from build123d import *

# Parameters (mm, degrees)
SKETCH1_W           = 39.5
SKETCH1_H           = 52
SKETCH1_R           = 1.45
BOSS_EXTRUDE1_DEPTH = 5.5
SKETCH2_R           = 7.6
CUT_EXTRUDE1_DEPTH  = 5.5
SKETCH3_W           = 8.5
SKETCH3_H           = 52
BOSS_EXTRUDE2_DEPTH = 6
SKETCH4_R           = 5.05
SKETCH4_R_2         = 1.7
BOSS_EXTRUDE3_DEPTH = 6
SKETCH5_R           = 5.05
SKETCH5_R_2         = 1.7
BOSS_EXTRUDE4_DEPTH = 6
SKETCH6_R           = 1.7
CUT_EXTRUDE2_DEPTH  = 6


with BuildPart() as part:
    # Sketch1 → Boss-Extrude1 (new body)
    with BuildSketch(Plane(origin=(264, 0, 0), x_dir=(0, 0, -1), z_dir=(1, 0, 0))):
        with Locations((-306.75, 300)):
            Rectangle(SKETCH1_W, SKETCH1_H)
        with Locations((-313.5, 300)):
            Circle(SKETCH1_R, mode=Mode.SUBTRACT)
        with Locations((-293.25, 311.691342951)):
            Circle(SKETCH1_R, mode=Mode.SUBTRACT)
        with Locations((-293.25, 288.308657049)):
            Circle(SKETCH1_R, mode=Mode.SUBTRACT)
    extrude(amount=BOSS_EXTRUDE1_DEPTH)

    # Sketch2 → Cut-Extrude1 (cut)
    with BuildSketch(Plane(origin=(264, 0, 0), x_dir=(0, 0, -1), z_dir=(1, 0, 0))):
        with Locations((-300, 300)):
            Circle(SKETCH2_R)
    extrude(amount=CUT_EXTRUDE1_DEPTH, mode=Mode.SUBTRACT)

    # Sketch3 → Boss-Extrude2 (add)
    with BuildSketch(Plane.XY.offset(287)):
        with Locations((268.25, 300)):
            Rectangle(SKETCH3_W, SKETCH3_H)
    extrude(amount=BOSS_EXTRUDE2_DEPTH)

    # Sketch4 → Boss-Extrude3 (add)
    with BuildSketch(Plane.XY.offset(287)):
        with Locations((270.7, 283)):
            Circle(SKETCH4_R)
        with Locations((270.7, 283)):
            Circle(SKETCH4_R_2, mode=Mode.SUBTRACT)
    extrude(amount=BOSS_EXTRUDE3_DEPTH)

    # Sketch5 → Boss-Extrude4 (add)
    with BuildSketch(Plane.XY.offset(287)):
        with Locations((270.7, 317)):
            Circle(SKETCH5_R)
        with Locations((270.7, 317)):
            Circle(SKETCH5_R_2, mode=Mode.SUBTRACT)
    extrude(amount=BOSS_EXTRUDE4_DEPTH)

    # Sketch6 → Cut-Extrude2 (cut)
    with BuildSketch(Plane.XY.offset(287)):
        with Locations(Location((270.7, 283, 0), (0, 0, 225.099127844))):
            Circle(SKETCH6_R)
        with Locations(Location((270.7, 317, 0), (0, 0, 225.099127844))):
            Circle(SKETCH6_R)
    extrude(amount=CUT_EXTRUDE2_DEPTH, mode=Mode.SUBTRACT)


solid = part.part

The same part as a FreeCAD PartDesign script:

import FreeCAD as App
import Part
import Sketcher
from FreeCAD import Vector


def add_polygon(sketch, points):
    """Adds a closed chain of lines whose ends are joined by coincident constraints."""
    first, n = sketch.GeometryCount, len(points)
    for a, b in zip(points, points[1:] + points[:1]):
        sketch.addGeometry(Part.LineSegment(App.Vector(*a, 0), App.Vector(*b, 0)), False)
    for i in range(n):
        sketch.addConstraint(Sketcher.Constraint("Coincident", first + i, 2, first + (i + 1) % n, 1))

doc = App.newDocument("Part")
params = doc.addObject("Spreadsheet::Sheet", "Params")
for row, (alias, value) in enumerate([
    ("sketch1_diameter", "2.9 mm"),
    ("sketch1_width", "52 mm"),
    ("sketch1_height", "39.5 mm"),
    ("pad1_length", "5.5 mm"),
    ("sketch2_diameter", "15.2 mm"),
    ("pocket1_length", "5.5 mm"),
    ("sketch3_height", "52 mm"),
    ("sketch3_width", "8.5 mm"),
    ("pad2_length", "6 mm"),
    ("sketch4_diameter", "10.1 mm"),
    ("sketch4_diameter2", "3.4 mm"),
    ("pad3_length", "6 mm"),
    ("sketch5_diameter", "10.1 mm"),
    ("sketch5_diameter2", "3.4 mm"),
    ("pad4_length", "6 mm"),
    ("sketch6_diameter", "3.4 mm"),
    ("pocket2_length", "6 mm"),
], start=1):
    params.set(f"A{row}", alias)
    params.set(f"B{row}", "=" + value)
    params.setAlias(f"B{row}", alias)

body = doc.addObject("PartDesign::Body", "Body")

sketch1 = body.newObject("Sketcher::SketchObject", "Sketch")
sketch1.AttachmentSupport = (doc.getObject("YZ_Plane"), [""])
sketch1.MapMode = "FlatFace"
sketch1.AttachmentOffset = App.Placement(Vector(0, 0, 264), App.Rotation())
add_polygon(sketch1, [(326, 326.5), (274, 326.5), (274, 287), (326, 287)])
sketch1.addGeometry(Part.Circle(Vector(288.3, 293.2, 0), Vector(0, 0, 1), 1.4), False)
sketch1.addGeometry(Part.Circle(Vector(300, 313.5, 0), Vector(0, 0, 1), 1.4), False)
sketch1.addGeometry(Part.Circle(Vector(311.7, 293.2, 0), Vector(0, 0, 1), 1.4), False)
sketch1.addConstraint([
    Sketcher.Constraint("Horizontal", 0),
    Sketcher.Constraint("Vertical", 1),
    Sketcher.Constraint("Horizontal", 2),
    Sketcher.Constraint("Vertical", 3),
    Sketcher.Constraint("Equal", 4, 5),
    Sketcher.Constraint("Equal", 5, 6),
    Sketcher.Constraint("Horizontal", 4, 3, 6, 3),
    Sketcher.Constraint("Diameter", 4, 2.9),
    Sketcher.Constraint("DistanceX", 0, 2, 0, 1, 52.0),
    Sketcher.Constraint("DistanceY", 1, 2, 1, 1, 39.5),
    Sketcher.Constraint("DistanceX", -1, 1, 5, 3, 300.0),
    Sketcher.Constraint("DistanceX", -1, 1, 0, 2, 274.0),
    Sketcher.Constraint("DistanceY", -1, 1, 1, 2, 287.0),
    Sketcher.Constraint("DistanceY", 5, 3, 0, 2, 13.0),
    Sketcher.Constraint("DistanceY", -1, 1, 4, 3, 293.25),
    Sketcher.Constraint("DistanceX", -1, 1, 4, 3, 288.308657),
    Sketcher.Constraint("DistanceX", -1, 1, 6, 3, 311.691343),
])
sketch1.setExpression("Constraints[11]", "Params.sketch1_diameter")
sketch1.setExpression("Constraints[12]", "Params.sketch1_width")
sketch1.setExpression("Constraints[13]", "Params.sketch1_height")
pad1 = body.newObject("PartDesign::Pad", "Pad")
pad1.Profile = sketch1
pad1.setExpression("Length", "Params.pad1_length")

sketch2 = body.newObject("Sketcher::SketchObject", "Sketch001")
sketch2.AttachmentSupport = (doc.getObject("YZ_Plane"), [""])
sketch2.MapMode = "FlatFace"
sketch2.AttachmentOffset = App.Placement(Vector(0, 0, 264), App.Rotation())
sketch2.addGeometry(Part.Circle(Vector(300, 300, 0), Vector(0, 0, 1), 8), False)
sketch2.addConstraint([
    Sketcher.Constraint("Diameter", 0, 15.2),
    Sketcher.Constraint("DistanceX", -1, 1, 0, 3, 300.0),
    Sketcher.Constraint("DistanceY", -1, 1, 0, 3, 300.0),
])
sketch2.setExpression("Constraints[0]", "Params.sketch2_diameter")
pocket1 = body.newObject("PartDesign::Pocket", "Pocket")
pocket1.Profile = sketch2
pocket1.setExpression("Length", "Params.pocket1_length")
pocket1.Reversed = True

sketch3 = body.newObject("Sketcher::SketchObject", "Sketch002")
sketch3.AttachmentSupport = (doc.getObject("XY_Plane"), [""])
sketch3.MapMode = "FlatFace"
sketch3.AttachmentOffset = App.Placement(Vector(0, 0, 287), App.Rotation())
add_polygon(sketch3, [(264, 326), (264, 274), (272, 274), (272, 326)])
sketch3.addConstraint([
    Sketcher.Constraint("Vertical", 0),
    Sketcher.Constraint("Horizontal", 1),
    Sketcher.Constraint("Vertical", 2),
    Sketcher.Constraint("Horizontal", 3),
    Sketcher.Constraint("DistanceY", 0, 2, 0, 1, 52.0),
    Sketcher.Constraint("DistanceX", 1, 1, 1, 2, 8.5),
    Sketcher.Constraint("DistanceX", -1, 1, 0, 2, 264.0),
    Sketcher.Constraint("DistanceY", -1, 1, 0, 2, 274.0),
])
sketch3.setExpression("Constraints[8]", "Params.sketch3_height")
sketch3.setExpression("Constraints[9]", "Params.sketch3_width")
pad2 = body.newObject("PartDesign::Pad", "Pad001")
pad2.Profile = sketch3
pad2.setExpression("Length", "Params.pad2_length")

sketch4 = body.newObject("Sketcher::SketchObject", "Sketch003")
sketch4.AttachmentSupport = (doc.getObject("XY_Plane"), [""])
sketch4.MapMode = "FlatFace"
sketch4.AttachmentOffset = App.Placement(Vector(0, 0, 287), App.Rotation())
sketch4.addGeometry([
    Part.Circle(Vector(270.7, 283, 0), Vector(0, 0, 1), 5),
    Part.Circle(Vector(270.7, 283, 0), Vector(0, 0, 1), 1.7),
], False)
sketch4.addConstraint([
    Sketcher.Constraint("Coincident", 1, 3, 0, 3),
    Sketcher.Constraint("Diameter", 0, 10.1),
    Sketcher.Constraint("Diameter", 1, 3.4),
    Sketcher.Constraint("DistanceY", -1, 1, 0, 3, 283.0),
    Sketcher.Constraint("DistanceX", -1, 1, 0, 3, 270.7),
])
sketch4.setExpression("Constraints[1]", "Params.sketch4_diameter")
sketch4.setExpression("Constraints[2]", "Params.sketch4_diameter2")
pad3 = body.newObject("PartDesign::Pad", "Pad002")
pad3.Profile = sketch4
pad3.setExpression("Length", "Params.pad3_length")

sketch5 = body.newObject("Sketcher::SketchObject", "Sketch004")
sketch5.AttachmentSupport = (doc.getObject("XY_Plane"), [""])
sketch5.MapMode = "FlatFace"
sketch5.AttachmentOffset = App.Placement(Vector(0, 0, 287), App.Rotation())
sketch5.addGeometry([
    Part.Circle(Vector(270.7, 317, 0), Vector(0, 0, 1), 5),
    Part.Circle(Vector(270.7, 317, 0), Vector(0, 0, 1), 1.7),
], False)
sketch5.addConstraint([
    Sketcher.Constraint("Coincident", 1, 3, 0, 3),
    Sketcher.Constraint("Diameter", 0, 10.1),
    Sketcher.Constraint("Diameter", 1, 3.4),
    Sketcher.Constraint("DistanceY", -1, 1, 0, 3, 317.0),
    Sketcher.Constraint("DistanceX", -1, 1, 0, 3, 270.7),
])
sketch5.setExpression("Constraints[1]", "Params.sketch5_diameter")
sketch5.setExpression("Constraints[2]", "Params.sketch5_diameter2")
pad4 = body.newObject("PartDesign::Pad", "Pad003")
pad4.Profile = sketch5
pad4.setExpression("Length", "Params.pad4_length")

sketch6 = body.newObject("Sketcher::SketchObject", "Sketch005")
sketch6.AttachmentSupport = (doc.getObject("XY_Plane"), [""])
sketch6.MapMode = "FlatFace"
sketch6.AttachmentOffset = App.Placement(Vector(0, 0, 287), App.Rotation())
sketch6.addGeometry([
    Part.Circle(Vector(270.7, 283, 0), Vector(0, 0, 1), 1.7),
    Part.Circle(Vector(270.7, 317, 0), Vector(0, 0, 1), 1.7),
], False)
sketch6.addConstraint([
    Sketcher.Constraint("Equal", 0, 1),
    Sketcher.Constraint("Vertical", 0, 3, 1, 3),
    Sketcher.Constraint("Diameter", 0, 3.4),
    Sketcher.Constraint("DistanceY", -1, 1, 0, 3, 283.0),
    Sketcher.Constraint("DistanceY", -1, 1, 1, 3, 317.0),
    Sketcher.Constraint("DistanceX", -1, 1, 0, 3, 270.7),
])
sketch6.setExpression("Constraints[2]", "Params.sketch6_diameter")
pocket2 = body.newObject("PartDesign::Pocket", "Pocket001")
pocket2.Profile = sketch6
pocket2.setExpression("Length", "Params.pocket2_length")
pocket2.Reversed = True

doc.recompute()
